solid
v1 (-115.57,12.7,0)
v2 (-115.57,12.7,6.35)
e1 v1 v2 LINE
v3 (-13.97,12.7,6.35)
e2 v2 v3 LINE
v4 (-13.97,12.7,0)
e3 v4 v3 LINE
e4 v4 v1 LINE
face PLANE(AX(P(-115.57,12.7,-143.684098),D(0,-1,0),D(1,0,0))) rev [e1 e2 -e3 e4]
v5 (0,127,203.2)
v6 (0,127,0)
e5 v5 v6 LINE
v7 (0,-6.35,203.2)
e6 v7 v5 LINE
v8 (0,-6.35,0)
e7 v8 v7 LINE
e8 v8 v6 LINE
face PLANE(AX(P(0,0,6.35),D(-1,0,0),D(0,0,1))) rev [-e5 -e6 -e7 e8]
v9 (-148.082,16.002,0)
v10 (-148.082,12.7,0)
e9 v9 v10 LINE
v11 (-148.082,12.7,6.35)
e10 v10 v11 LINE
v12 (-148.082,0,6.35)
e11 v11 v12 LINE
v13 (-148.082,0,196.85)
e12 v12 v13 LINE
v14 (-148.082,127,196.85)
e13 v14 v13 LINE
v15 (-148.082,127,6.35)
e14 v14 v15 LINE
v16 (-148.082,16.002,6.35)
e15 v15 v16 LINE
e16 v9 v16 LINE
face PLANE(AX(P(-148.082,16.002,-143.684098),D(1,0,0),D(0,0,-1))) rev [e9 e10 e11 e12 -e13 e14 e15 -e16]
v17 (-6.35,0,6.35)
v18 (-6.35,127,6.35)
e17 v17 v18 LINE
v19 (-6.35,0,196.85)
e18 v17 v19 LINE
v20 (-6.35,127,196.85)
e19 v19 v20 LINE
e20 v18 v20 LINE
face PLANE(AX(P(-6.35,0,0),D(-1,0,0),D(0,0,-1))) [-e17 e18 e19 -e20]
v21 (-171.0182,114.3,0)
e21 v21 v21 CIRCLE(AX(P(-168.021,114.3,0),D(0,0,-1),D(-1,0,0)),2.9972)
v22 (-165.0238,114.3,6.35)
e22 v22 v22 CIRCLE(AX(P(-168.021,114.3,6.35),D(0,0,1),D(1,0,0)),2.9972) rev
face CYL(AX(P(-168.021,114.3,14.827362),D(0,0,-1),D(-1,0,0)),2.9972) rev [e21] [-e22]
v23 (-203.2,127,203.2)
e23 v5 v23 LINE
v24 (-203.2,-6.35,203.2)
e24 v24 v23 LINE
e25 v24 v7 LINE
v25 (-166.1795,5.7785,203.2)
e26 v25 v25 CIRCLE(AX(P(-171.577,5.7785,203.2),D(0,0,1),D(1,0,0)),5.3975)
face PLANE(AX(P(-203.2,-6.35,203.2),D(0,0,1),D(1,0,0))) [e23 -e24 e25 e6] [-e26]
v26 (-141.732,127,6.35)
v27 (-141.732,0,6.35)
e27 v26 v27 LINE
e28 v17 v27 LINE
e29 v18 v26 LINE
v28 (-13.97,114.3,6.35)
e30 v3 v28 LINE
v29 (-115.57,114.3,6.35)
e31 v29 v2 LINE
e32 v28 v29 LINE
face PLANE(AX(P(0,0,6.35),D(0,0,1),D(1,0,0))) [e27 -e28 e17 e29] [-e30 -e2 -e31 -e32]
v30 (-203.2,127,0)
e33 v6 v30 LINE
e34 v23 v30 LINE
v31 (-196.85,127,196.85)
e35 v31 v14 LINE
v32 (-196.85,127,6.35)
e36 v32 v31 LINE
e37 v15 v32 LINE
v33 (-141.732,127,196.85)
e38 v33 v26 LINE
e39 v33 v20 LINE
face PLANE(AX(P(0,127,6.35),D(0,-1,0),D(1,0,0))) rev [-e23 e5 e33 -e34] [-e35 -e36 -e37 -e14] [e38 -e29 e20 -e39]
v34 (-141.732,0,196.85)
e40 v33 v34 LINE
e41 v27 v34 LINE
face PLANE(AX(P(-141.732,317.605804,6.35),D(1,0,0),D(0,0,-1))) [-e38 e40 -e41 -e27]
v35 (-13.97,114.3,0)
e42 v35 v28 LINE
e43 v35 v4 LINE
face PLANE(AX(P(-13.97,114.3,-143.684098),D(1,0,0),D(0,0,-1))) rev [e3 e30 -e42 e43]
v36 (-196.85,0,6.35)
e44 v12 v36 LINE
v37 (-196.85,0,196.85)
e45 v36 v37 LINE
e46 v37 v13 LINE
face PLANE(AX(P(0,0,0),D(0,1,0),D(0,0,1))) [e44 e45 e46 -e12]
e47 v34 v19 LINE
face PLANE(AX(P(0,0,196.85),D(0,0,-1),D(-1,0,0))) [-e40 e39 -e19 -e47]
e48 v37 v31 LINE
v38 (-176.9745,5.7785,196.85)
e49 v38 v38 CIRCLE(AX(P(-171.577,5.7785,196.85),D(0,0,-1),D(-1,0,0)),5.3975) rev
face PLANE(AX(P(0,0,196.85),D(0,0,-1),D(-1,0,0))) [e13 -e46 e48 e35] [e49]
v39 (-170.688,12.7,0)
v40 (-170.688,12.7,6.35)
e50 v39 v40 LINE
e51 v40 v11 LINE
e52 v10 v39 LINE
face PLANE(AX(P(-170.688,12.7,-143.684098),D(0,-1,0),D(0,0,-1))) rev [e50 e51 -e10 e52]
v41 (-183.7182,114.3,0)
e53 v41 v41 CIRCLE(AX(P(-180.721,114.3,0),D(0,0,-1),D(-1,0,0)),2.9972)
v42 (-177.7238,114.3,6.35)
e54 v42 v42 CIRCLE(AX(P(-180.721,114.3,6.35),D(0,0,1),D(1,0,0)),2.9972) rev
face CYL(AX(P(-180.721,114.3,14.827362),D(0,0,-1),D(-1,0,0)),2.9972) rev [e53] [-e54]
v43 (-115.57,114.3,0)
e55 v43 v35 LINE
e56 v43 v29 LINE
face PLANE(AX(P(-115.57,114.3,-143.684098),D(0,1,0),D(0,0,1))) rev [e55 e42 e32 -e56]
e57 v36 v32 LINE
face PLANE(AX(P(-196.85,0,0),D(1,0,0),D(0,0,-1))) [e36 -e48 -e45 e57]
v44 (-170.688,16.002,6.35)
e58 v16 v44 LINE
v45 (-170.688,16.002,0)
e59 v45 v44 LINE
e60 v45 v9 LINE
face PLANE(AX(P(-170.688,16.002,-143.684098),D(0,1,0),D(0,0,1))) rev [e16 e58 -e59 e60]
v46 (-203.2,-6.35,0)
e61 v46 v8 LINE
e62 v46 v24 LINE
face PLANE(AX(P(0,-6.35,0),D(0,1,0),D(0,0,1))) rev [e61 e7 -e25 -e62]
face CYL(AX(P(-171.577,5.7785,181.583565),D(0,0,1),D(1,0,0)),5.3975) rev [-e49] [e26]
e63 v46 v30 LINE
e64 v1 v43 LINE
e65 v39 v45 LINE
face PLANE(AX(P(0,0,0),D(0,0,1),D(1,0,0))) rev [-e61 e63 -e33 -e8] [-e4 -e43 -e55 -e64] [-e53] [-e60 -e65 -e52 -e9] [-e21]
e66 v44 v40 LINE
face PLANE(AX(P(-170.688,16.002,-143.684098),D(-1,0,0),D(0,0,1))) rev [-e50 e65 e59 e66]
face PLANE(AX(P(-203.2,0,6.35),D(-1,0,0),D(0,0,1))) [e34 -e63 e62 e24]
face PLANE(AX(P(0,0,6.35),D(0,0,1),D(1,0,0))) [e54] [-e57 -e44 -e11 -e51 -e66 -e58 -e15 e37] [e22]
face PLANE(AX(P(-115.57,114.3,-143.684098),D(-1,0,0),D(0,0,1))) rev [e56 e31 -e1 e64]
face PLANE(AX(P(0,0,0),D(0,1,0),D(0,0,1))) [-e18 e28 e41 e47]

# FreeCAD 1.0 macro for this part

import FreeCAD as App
import Part
import Sketcher

V = App.Vector
Q = App.Units.Quantity


def add_polygon(sketch, points):
    """Adds a closed chain of lines whose ends are joined by coincident constraints."""
    first, n = sketch.GeometryCount, len(points)
    for a, b in zip(points, points[1:] + points[:1]):
        sketch.addGeometry(Part.LineSegment(App.Vector(*a, 0), App.Vector(*b, 0)), False)
    for i in range(n):
        sketch.addConstraint(Sketcher.Constraint("Coincident", first + i, 2, first + (i + 1) % n, 1))

doc = App.newDocument("Part")
body = doc.addObject("PartDesign::Body", "Body")

# Sketch on XY plane
sketch1 = body.newObject("Sketcher::SketchObject", "Sketch")
sketch1.AttachmentSupport = (doc.getObject("XY_Plane"), [""])
sketch1.MapMode = "FlatFace"
add_polygon(sketch1, [(-203, 127), (-203, 0), (0, 0), (0, 127)])  # lines 0-3
sketch1.addConstraint([
    Sketcher.Constraint("Vertical", 0),
    Sketcher.Constraint("Horizontal", 1),
    Sketcher.Constraint("Vertical", 2),
    Sketcher.Constraint("Horizontal", 3),
    Sketcher.Constraint("Coincident", 1, 2, -1, 1),
    Sketcher.Constraint("DistanceX", 1, 1, 1, 2, Q("8 in")),
    Sketcher.Constraint("DistanceY", 0, 2, 0, 1, Q("5 in")),
])
pad1 = body.newObject("PartDesign::Pad", "Pad")
pad1.Profile = sketch1
pad1.Length = Q("0.25 in")

# Sketch on XY plane
sketch2 = body.newObject("Sketcher::SketchObject", "Sketch001")
sketch2.AttachmentSupport = (doc.getObject("XY_Plane"), [""])
sketch2.MapMode = "FlatFace"
sketch2.AttachmentOffset = App.Placement(V(0, 0, 0.25 * 25.4), App.Rotation())
add_polygon(sketch2, [(-115.6, 114.3), (-115.6, 12.7), (-14, 12.7), (-14, 114.3)])  # lines 0-3
add_polygon(sketch2, [(-170.7, 16), (-170.7, 12.7), (-148.1, 12.7), (-148.1, 16)])  # lines 4-7
sketch2.addConstraint([
    Sketcher.Constraint("Vertical", 0),
    Sketcher.Constraint("Horizontal", 1),
    Sketcher.Constraint("Vertical", 2),
    Sketcher.Constraint("Horizontal", 3),
    Sketcher.Constraint("Vertical", 4),
    Sketcher.Constraint("Horizontal", 5),
    Sketcher.Constraint("Vertical", 6),
    Sketcher.Constraint("Horizontal", 7),
    Sketcher.Constraint("Horizontal", 1, 2, 4, 2),
    Sketcher.Constraint("Equal", 3, 0),
    Sketcher.Constraint("DistanceX", 1, 1, 1, 2, Q("4 in")),
    Sketcher.Constraint("DistanceX", 5, 1, 5, 2, Q("0.89 in")),
    Sketcher.Constraint("DistanceY", 4, 2, 4, 1, Q("0.13 in")),
    Sketcher.Constraint("DistanceY", -1, 1, 0, 2, Q("0.5 in")),
    Sketcher.Constraint("DistanceX", 0, 2, -1, 1, Q("4.55 in")),
    Sketcher.Constraint("DistanceX", 4, 2, -1, 1, Q("6.72 in")),
])
pocket1 = body.newObject("PartDesign::Pocket", "Pocket")
pocket1.Profile = sketch2
pocket1.Length = Q("0.25 in")

# Sketch on XZ plane
sketch3 = body.newObject("Sketcher::SketchObject", "Sketch002")
sketch3.AttachmentSupport = (doc.getObject("XZ_Plane"), [""])
sketch3.MapMode = "FlatFace"
add_polygon(sketch3, [(-203, 203), (-203, 0), (0, 0), (0, 203)])  # lines 0-3
sketch3.addConstraint([
    Sketcher.Constraint("Vertical", 0),
    Sketcher.Constraint("Horizontal", 1),
    Sketcher.Constraint("Vertical", 2),
    Sketcher.Constraint("Horizontal", 3),
    Sketcher.Constraint("Coincident", 1, 2, -1, 1),
    Sketcher.Constraint("Equal", 3, 0),
    Sketcher.Constraint("DistanceX", 1, 1, 1, 2, Q("8 in")),
])
pad2 = body.newObject("PartDesign::Pad", "Pad001")
pad2.Profile = sketch3
pad2.Length = Q("0.25 in")

# Sketch on YZ plane
sketch4 = body.newObject("Sketcher::SketchObject", "Sketch003")
sketch4.AttachmentSupport = (doc.getObject("YZ_Plane"), [""])
sketch4.MapMode = "FlatFace"
sketch4.AttachmentOffset = App.Placement(V(0, 0, -8 * 25.4), App.Rotation())
add_polygon(sketch4, [(127, 6), (0, 6), (0, 203), (127, 203)])  # lines 0-3
sketch4.addConstraint([
    Sketcher.Constraint("Horizontal", 0),
    Sketcher.Constraint("Vertical", 1),
    Sketcher.Constraint("Horizontal", 2),
    Sketcher.Constraint("Vertical", 3),
    Sketcher.Constraint("PointOnObject", 0, 2, -2),
    Sketcher.Constraint("DistanceX", 0, 2, 0, 1, Q("5 in")),
    Sketcher.Constraint("DistanceY", -1, 1, 1, 2, Q("8 in")),
    Sketcher.Constraint("DistanceY", 1, 1, 1, 2, Q("7.75 in")),
])
pad3 = body.newObject("PartDesign::Pad", "Pad002")
pad3.Profile = sketch4
pad3.Length = Q("0.25 in")
doc.recompute()

datumplane = body.newObject("PartDesign::Plane", "DatumPlane")
datumplane.AttachmentSupport = (doc.getObject("YZ_Plane"), [""])
datumplane.MapMode = "FlatFace"
datumplane.AttachmentOffset = App.Placement(V(0, 0, -4 * 25.4), App.Rotation())
mirrored = body.newObject("PartDesign::Mirrored", "Mirrored")
mirrored.Originals = [pad3]
mirrored.MirrorPlane = (datumplane, [""])
body.Tip = mirrored

# Sketch on XY plane
sketch5 = body.newObject("Sketcher::SketchObject", "Sketch004")
sketch5.AttachmentSupport = (doc.getObject("XY_Plane"), [""])
sketch5.MapMode = "FlatFace"
sketch5.AttachmentOffset = App.Placement(V(0, 0, 8 * 25.4), App.Rotation())
add_polygon(sketch5, [(-197, 127), (-197, 0), (-6, 0), (-6, 127)])  # lines 0-3
sketch5.addConstraint([
    Sketcher.Constraint("Vertical", 0),
    Sketcher.Constraint("Horizontal", 1),
    Sketcher.Constraint("Vertical", 2),
    Sketcher.Constraint("Horizontal", 3),
    Sketcher.Constraint("PointOnObject", 0, 2, -1),
    Sketcher.Constraint("DistanceY", 0, 2, 0, 1, Q("5 in")),
    Sketcher.Constraint("DistanceX", 1, 1, 1, 2, Q("7.5 in")),
    Sketcher.Constraint("DistanceX", 0, 2, -1, 1, Q("7.75 in")),
])
pad4 = body.newObject("PartDesign::Pad", "Pad003")
pad4.Profile = sketch5
pad4.Length = Q("0.25 in")
pad4.Reversed = True

# Sketch on XZ plane
sketch6 = body.newObject("Sketcher::SketchObject", "Sketch005")
sketch6.AttachmentSupport = (doc.getObject("XZ_Plane"), [""])
sketch6.MapMode = "FlatFace"
add_polygon(sketch6, [(-148, 6), (-148, 197), (-142, 197), (-142, 6)])  # lines 0-3
sketch6.addConstraint([
    Sketcher.Constraint("Vertical", 0),
    Sketcher.Constraint("Horizontal", 1),
    Sketcher.Constraint("Vertical", 2),
    Sketcher.Constraint("Horizontal", 3),
    Sketcher.Constraint("DistanceY", 0, 1, 0, 2, Q("7.5 in")),
    Sketcher.Constraint("DistanceX", 1, 1, 1, 2, Q("0.25 in")),
    Sketcher.Constraint("DistanceX", 0, 2, -1, 1, Q("5.83 in")),
    Sketcher.Constraint("DistanceY", -1, 1, 0, 2, Q("7.75 in")),
])
pad5 = body.newObject("PartDesign::Pad", "Pad004")
pad5.Profile = sketch6
pad5.Length = Q("5 in")
pad5.Reversed = True

# Sketch on XY plane
sketch7 = body.newObject("Sketcher::SketchObject", "Sketch006")
sketch7.AttachmentSupport = (doc.getObject("XY_Plane"), [""])
sketch7.MapMode = "FlatFace"
sketch7.AttachmentOffset = App.Placement(V(0, 0, 8 * 25.4), App.Rotation())
sketch7.addGeometry(Part.Circle(V(-172, 6, 0), V(0, 0, 1), 5), False)
sketch7.addConstraint([
    Sketcher.Constraint("Diameter", 0, Q("0.425 in")),
    Sketcher.Constraint("DistanceX", 0, 3, -1, 1, Q("6.755 in")),
    Sketcher.Constraint("DistanceY", -1, 1, 0, 3, Q("0.2275 in")),
])
pocket2 = body.newObject("PartDesign::Pocket", "Pocket001")
pocket2.Profile = sketch7
pocket2.Length = Q("0.25 in")

# Sketch on XY plane
sketch8 = body.newObject("Sketcher::SketchObject", "Sketch007")
sketch8.AttachmentSupport = (doc.getObject("XY_Plane"), [""])
sketch8.MapMode = "FlatFace"
sketch8.addGeometry([
    Part.Circle(V(-168, 114.3, 0), V(0, 0, 1), 3),
    Part.Circle(V(-180.7, 114.3, 0), V(0, 0, 1), 3),
], False)
sketch8.addConstraint([
    Sketcher.Constraint("Equal", 0, 1),
    Sketcher.Constraint("Horizontal", 0, 3, 1, 3),
    Sketcher.Constraint("Diameter", 0, Q("0.236 in")),
    Sketcher.Constraint("DistanceY", -1, 1, 0, 3, Q("4.5 in")),
    Sketcher.Constraint("DistanceX", 1, 3, 0, 3, Q("0.5 in")),
    Sketcher.Constraint("DistanceX", 0, 3, -1, 1, Q("6.615 in")),
])
pocket3 = body.newObject("PartDesign::Pocket", "Pocket002")
pocket3.Profile = sketch8
pocket3.Length = Q("0.25 in")
pocket3.Reversed = True

doc.recompute()
